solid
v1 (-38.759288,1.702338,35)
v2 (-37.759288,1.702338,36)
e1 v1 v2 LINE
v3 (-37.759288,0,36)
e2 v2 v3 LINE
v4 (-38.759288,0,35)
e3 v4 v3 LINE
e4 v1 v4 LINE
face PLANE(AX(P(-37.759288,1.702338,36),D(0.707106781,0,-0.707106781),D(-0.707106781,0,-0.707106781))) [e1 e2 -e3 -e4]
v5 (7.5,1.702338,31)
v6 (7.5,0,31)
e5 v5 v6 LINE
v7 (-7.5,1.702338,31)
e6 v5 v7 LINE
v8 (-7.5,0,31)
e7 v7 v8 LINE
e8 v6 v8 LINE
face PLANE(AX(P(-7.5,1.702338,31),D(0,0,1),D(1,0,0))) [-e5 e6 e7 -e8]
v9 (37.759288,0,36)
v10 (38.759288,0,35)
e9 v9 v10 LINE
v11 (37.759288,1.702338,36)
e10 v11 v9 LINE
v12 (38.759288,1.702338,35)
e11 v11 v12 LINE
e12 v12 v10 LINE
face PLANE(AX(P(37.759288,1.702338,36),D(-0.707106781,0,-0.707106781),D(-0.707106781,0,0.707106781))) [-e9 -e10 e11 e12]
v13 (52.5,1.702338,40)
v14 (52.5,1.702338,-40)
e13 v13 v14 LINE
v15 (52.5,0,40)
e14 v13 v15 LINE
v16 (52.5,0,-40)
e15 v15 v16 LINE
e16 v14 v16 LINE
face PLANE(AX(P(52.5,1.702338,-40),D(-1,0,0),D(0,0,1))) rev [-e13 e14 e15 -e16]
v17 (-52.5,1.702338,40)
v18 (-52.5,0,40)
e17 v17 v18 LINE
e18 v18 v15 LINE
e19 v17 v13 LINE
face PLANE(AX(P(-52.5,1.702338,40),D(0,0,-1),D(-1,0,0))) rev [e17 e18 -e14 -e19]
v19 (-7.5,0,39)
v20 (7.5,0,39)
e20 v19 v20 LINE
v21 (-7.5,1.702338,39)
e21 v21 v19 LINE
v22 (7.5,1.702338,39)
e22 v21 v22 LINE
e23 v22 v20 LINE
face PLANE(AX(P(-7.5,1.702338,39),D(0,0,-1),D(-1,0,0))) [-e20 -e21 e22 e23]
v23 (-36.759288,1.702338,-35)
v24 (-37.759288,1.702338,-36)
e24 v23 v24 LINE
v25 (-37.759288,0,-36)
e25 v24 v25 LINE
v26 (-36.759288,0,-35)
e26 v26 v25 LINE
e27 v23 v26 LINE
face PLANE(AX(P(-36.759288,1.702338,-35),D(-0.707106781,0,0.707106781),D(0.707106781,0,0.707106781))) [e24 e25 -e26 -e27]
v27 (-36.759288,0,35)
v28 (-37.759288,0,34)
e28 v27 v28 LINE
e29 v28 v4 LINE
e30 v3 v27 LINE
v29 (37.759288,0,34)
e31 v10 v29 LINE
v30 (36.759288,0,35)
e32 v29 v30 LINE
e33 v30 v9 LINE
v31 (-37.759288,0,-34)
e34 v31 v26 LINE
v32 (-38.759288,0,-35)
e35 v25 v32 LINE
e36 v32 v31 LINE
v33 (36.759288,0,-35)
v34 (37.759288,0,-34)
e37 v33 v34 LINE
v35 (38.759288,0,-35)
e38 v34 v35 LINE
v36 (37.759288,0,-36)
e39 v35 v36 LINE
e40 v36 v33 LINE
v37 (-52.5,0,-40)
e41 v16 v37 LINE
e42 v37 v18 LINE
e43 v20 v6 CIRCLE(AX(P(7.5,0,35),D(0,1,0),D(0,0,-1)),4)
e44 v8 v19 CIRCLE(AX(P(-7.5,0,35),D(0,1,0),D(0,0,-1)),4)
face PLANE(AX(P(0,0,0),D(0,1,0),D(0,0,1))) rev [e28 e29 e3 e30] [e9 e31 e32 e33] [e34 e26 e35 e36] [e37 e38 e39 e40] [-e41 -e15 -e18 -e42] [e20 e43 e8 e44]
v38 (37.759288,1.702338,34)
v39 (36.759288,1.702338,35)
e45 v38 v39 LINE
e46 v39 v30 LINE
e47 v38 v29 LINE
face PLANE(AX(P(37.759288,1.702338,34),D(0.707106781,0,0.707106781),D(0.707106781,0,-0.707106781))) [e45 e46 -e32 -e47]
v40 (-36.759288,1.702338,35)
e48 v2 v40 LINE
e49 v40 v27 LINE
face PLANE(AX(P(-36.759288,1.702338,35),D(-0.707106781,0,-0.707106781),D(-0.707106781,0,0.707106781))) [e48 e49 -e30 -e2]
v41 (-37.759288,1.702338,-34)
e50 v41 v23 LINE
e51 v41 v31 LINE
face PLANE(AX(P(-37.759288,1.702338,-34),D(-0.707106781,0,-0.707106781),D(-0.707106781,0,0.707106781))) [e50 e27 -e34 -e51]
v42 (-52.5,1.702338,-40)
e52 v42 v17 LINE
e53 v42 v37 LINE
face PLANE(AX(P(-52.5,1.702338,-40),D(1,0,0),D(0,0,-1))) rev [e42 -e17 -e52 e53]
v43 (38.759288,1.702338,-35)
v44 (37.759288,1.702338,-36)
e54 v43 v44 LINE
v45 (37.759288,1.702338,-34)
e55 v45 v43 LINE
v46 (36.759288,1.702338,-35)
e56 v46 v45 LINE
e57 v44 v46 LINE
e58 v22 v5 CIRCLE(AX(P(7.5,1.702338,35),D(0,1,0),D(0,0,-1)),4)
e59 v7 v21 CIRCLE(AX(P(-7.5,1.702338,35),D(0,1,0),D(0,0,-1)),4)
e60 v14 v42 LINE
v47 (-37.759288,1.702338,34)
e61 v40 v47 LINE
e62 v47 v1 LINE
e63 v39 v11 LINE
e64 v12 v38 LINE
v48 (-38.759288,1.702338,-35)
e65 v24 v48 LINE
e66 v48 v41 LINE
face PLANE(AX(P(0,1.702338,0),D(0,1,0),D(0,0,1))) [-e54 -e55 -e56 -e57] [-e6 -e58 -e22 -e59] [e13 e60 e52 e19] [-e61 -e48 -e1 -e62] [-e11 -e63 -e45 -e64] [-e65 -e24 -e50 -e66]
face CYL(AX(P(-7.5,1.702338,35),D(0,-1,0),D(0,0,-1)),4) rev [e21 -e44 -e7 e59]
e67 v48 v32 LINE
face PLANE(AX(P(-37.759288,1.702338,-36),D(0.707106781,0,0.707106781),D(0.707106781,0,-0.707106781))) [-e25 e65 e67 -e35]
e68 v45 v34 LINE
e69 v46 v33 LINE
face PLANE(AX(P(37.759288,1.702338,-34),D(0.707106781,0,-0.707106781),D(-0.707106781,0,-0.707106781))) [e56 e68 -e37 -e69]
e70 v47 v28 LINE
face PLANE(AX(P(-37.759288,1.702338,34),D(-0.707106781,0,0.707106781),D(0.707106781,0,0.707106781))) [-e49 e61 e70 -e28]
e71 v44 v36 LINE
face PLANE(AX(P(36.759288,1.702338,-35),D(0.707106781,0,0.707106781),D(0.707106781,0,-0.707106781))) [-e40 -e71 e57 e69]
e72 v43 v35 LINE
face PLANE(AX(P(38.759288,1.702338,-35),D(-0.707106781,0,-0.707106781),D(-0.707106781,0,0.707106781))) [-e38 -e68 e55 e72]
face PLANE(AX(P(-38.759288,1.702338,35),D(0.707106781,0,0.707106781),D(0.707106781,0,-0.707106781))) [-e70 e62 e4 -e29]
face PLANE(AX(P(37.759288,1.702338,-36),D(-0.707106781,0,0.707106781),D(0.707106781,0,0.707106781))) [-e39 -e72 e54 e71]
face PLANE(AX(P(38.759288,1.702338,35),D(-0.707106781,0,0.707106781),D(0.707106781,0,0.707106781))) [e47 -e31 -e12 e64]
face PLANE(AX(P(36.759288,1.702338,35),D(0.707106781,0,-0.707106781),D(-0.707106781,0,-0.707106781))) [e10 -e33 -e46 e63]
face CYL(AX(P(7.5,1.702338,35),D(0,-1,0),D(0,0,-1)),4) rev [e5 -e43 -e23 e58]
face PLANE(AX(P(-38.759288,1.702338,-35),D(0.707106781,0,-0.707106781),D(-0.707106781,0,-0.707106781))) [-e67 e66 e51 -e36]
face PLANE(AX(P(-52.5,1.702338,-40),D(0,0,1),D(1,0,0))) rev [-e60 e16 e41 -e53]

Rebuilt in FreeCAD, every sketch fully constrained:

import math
import FreeCAD as App
import Part
import Sketcher
from FreeCAD import Vector


def add_polygon(sketch, points):
    """Adds a closed chain of lines whose ends are joined by coincident constraints."""
    first, n = sketch.GeometryCount, len(points)
    for a, b in zip(points, points[1:] + points[:1]):
        sketch.addGeometry(Part.LineSegment(App.Vector(*a, 0), App.Vector(*b, 0)), False)
    for i in range(n):
        sketch.addConstraint(Sketcher.Constraint("Coincident", first + i, 2, first + (i + 1) % n, 1))

doc = App.newDocument("Part")
body = doc.addObject("PartDesign::Body", "Body")

sketch1 = body.newObject("Sketcher::SketchObject", "Sketch")
sketch1.AttachmentSupport = (doc.getObject("XZ_Plane"), [""])
sketch1.MapMode = "FlatFace"
add_polygon(sketch1, [(-52.5, -40), (-52.5, 40), (52.5, 40), (52.5, -40)])
add_polygon(sketch1, [(-37.759288, 36), (-38.759288, 35), (-37.759288, 34), (-36.759288, 35)])
sketch1.addGeometry(Part.LineSegment(Vector(7.5, 39, 0), Vector(-7.5, 39, 0)), False)
sketch1.addGeometry(Part.ArcOfCircle(Part.Circle(Vector(-7.5, 35, 0), Vector(0, 0, 1), 4), math.radians(90), math.radians(270)), False)
sketch1.addGeometry(Part.LineSegment(Vector(-7.5, 31, 0), Vector(7.5, 31, 0)), False)
sketch1.addGeometry(Part.ArcOfCircle(Part.Circle(Vector(7.5, 35, 0), Vector(0, 0, 1), 4), math.radians(-90), math.radians(90)), False)
add_polygon(sketch1, [(38.759288, 35), (37.759288, 36), (36.759288, 35), (37.759288, 34)])
add_polygon(sketch1, [(-36.759288, -35), (-37.759288, -34), (-38.759288, -35), (-37.759288, -36)])
add_polygon(sketch1, [(37.759288, -36), (38.759288, -35), (37.759288, -34), (36.759288, -35)])
sketch1.addConstraint(Sketcher.Constraint("Tangent", 8, 2, 9, 1))
sketch1.addConstraint(Sketcher.Constraint("Tangent", 9, 2, 10, 1))
sketch1.addConstraint(Sketcher.Constraint("Tangent", 10, 2, 11, 1))
sketch1.addConstraint(Sketcher.Constraint("Tangent", 11, 2, 8, 1))
sketch1.addConstraint(Sketcher.Constraint("Vertical", 0))
sketch1.addConstraint(Sketcher.Constraint("Horizontal", 1))
sketch1.addConstraint(Sketcher.Constraint("Vertical", 2))
sketch1.addConstraint(Sketcher.Constraint("Horizontal", 3))
sketch1.addConstraint(Sketcher.Constraint("Horizontal", 8))
sketch1.addConstraint(Sketcher.Constraint("Horizontal", 10))
sketch1.addConstraint(Sketcher.Constraint("Symmetric", 0, 2, 2, 2, -1, 1))
sketch1.addConstraint(Sketcher.Constraint("Symmetric", 14, 2, 16, 2, -1, 1))
sketch1.addConstraint(Sketcher.Constraint("Symmetric", 15, 2, 17, 2, -1, 1))
sketch1.addConstraint(Sketcher.Constraint("Symmetric", 12, 2, 18, 2, -1, 1))
sketch1.addConstraint(Sketcher.Constraint("Symmetric", 13, 2, 19, 2, -1, 1))
sketch1.addConstraint(Sketcher.Constraint("Symmetric", 4, 2, 20, 2, -1, 1))
sketch1.addConstraint(Sketcher.Constraint("Symmetric", 5, 2, 21, 2, -1, 1))
sketch1.addConstraint(Sketcher.Constraint("Symmetric", 6, 2, 22, 2, -1, 1))
sketch1.addConstraint(Sketcher.Constraint("Symmetric", 7, 2, 23, 2, -1, 1))
sketch1.addConstraint(Sketcher.Constraint("Symmetric", 7, 2, 12, 2, -2))
sketch1.addConstraint(Sketcher.Constraint("Symmetric", 6, 2, 13, 2, -2))
sketch1.addConstraint(Sketcher.Constraint("Symmetric", 5, 2, 14, 2, -2))
sketch1.addConstraint(Sketcher.Constraint("Symmetric", 4, 2, 15, 2, -2))
sketch1.addConstraint(Sketcher.Constraint("Perpendicular", 4, 5))
sketch1.addConstraint(Sketcher.Constraint("Perpendicular", 5, 6))
sketch1.addConstraint(Sketcher.Constraint("Perpendicular", 6, 7))
sketch1.addConstraint(Sketcher.Constraint("Parallel", 7, 12))
sketch1.addConstraint(Sketcher.Constraint("Horizontal", 11, 3, 4, 2))
sketch1.addConstraint(Sketcher.Constraint("Horizontal", 4, 2, 6, 2))
sketch1.addConstraint(Sketcher.Constraint("Radius", 9, 4.0))
sketch1.addConstraint(Sketcher.Constraint("DistanceX", 1, 1, 1, 2, 105.0))
sketch1.addConstraint(Sketcher.Constraint("DistanceX", 8, 2, 8, 1, 15.0))
sketch1.addConstraint(Sketcher.Constraint("DistanceY", 0, 1, 0, 2, 80.0))
sketch1.addConstraint(Sketcher.Constraint("DistanceY", -1, 1, 9, 3, 35.0))
sketch1.addConstraint(Sketcher.Constraint("DistanceY", -1, 1, 5, 2, 34.0))
sketch1.addConstraint(Sketcher.Constraint("DistanceX", 0, 2, 9, 3, 45.0))
sketch1.addConstraint(Sketcher.Constraint("DistanceX", 4, 2, -1, 1, 38.759288))
pad1 = body.newObject("PartDesign::Pad", "Pad")
pad1.Profile = sketch1
pad1.Length = 1.702338
pad1.Reversed = True

doc.recompute()
